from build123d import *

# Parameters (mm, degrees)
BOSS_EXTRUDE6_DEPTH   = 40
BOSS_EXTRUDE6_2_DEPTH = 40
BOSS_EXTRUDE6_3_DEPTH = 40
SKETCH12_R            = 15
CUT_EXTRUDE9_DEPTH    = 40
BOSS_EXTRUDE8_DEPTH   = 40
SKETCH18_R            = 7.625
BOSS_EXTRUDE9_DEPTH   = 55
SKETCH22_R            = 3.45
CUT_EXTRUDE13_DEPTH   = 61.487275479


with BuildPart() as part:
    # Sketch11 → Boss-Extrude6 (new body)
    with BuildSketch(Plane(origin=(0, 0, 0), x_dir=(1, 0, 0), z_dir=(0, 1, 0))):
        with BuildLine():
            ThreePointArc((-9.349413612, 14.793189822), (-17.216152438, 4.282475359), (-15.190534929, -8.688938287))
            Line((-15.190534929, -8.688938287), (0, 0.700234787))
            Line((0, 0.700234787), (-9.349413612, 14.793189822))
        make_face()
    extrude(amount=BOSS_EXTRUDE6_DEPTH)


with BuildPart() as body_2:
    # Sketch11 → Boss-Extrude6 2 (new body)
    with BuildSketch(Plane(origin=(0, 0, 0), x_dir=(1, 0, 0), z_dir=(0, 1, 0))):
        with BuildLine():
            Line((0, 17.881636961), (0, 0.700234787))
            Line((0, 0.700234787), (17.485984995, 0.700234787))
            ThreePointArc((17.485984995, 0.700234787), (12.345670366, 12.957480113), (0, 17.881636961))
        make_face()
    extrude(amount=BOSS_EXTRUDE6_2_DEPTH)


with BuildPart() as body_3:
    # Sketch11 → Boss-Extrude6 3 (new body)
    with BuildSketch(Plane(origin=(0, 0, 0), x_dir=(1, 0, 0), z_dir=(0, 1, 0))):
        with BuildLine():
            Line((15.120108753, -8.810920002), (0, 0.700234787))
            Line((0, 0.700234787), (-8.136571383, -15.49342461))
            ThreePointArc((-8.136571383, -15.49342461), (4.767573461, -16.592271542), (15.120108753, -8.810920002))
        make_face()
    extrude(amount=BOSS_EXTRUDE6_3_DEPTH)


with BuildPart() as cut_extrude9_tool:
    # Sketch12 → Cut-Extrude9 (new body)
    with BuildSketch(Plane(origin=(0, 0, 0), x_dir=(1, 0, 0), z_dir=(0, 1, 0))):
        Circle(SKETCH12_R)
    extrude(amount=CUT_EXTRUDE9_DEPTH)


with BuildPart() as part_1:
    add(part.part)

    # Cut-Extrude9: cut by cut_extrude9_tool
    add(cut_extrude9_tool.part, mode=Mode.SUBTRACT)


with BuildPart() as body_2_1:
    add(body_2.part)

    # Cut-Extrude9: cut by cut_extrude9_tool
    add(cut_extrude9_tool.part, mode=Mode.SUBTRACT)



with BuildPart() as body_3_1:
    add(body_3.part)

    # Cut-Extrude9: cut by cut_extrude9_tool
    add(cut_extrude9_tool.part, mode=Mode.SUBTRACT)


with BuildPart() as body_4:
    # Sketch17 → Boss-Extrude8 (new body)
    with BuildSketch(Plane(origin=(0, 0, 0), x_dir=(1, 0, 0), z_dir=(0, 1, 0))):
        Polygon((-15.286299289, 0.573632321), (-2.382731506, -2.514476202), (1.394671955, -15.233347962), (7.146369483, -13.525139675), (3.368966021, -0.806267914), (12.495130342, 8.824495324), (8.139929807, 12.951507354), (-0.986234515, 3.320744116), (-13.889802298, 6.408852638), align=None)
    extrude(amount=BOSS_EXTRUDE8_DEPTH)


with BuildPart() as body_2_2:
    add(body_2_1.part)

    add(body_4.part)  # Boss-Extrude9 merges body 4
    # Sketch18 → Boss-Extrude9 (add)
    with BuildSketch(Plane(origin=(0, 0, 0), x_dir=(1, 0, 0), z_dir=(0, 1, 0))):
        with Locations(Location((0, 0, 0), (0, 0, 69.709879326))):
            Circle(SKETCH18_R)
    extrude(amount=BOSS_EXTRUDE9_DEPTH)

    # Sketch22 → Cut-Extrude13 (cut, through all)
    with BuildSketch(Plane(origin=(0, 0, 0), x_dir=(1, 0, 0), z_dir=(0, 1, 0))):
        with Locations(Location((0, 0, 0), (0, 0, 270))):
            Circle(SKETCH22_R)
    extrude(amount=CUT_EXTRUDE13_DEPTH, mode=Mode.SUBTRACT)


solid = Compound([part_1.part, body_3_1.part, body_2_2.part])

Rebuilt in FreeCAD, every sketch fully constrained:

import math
import FreeCAD as App
import Part
import Sketcher

V = App.Vector

doc = App.newDocument("Part")
body = doc.addObject("PartDesign::Body", "Body")

# Sketch on XZ plane
sketch1 = body.newObject("Sketcher::SketchObject", "Sketch")
sketch1.AttachmentSupport = (doc.getObject("XZ_Plane"), [""])
sketch1.MapMode = "FlatFace"
sketch1.addGeometry(Part.ArcOfCircle(Part.Circle(V(-1, 0, 0), V(0, 0, 1), 17), math.radians(148), math.radians(240)), False)
sketch1.addGeometry(Part.LineSegment(V(-15, 9, 0), V(0, -1, 0)), False)
sketch1.addGeometry(Part.LineSegment(V(0, -1, 0), V(-9, -15, 0)), False)
sketch1.addConstraint(Sketcher.Constraint("Coincident", 0, 1, 1, 1))
sketch1.addConstraint(Sketcher.Constraint("Coincident", 1, 2, 2, 1))
sketch1.addConstraint(Sketcher.Constraint("Coincident", 2, 2, 0, 2))
sketch1.addConstraint(Sketcher.Constraint("PointOnObject", 1, 2, -2))
sketch1.addConstraint(Sketcher.Constraint("Radius", 0, 16.908369))
sketch1.addConstraint(Sketcher.Constraint("DistanceX", 0, 3, -1, 1, 0.807801))
sketch1.addConstraint(Sketcher.Constraint("Distance", 1, 17.858021))
sketch1.addConstraint(Sketcher.Constraint("DistanceY", 0, 3, -1, 1, 0.200938))
sketch1.addConstraint(Sketcher.Constraint("DistanceY", -1, 1, 0, 1, 8.688938))
sketch1.addConstraint(Sketcher.Constraint("DistanceY", 2, 2, -1, 1, 14.79319))
pad1 = body.newObject("PartDesign::Pad", "Pad")
pad1.Profile = sketch1
pad1.Length = 40
pad1.Reversed = True
body2 = doc.addObject("PartDesign::Body", "Body001")

# Sketch on XZ plane
sketch2 = body2.newObject("Sketcher::SketchObject", "Sketch001")
sketch2.AttachmentSupport = (doc.getObject("XZ_Plane001"), [""])
sketch2.MapMode = "FlatFace"
sketch2.addGeometry(Part.LineSegment(V(0, -18, 0), V(0, -1, 0)), False)
sketch2.addGeometry(Part.LineSegment(V(0, -1, 0), V(17, -1, 0)), False)
sketch2.addGeometry(Part.ArcOfCircle(Part.Circle(V(0, -1, 0), V(0, 0, 1), 17), math.radians(-91), math.radians(0)), False)
sketch2.addConstraint(Sketcher.Constraint("Coincident", 0, 2, 1, 1))
sketch2.addConstraint(Sketcher.Constraint("Coincident", 1, 2, 2, 2))
sketch2.addConstraint(Sketcher.Constraint("Coincident", 2, 1, 0, 1))
sketch2.addConstraint(Sketcher.Constraint("Vertical", 0))
sketch2.addConstraint(Sketcher.Constraint("Horizontal", 1))
sketch2.addConstraint(Sketcher.Constraint("PointOnObject", 0, 2, -2))
sketch2.addConstraint(Sketcher.Constraint("Horizontal", 2, 3, 0, 2))
sketch2.addConstraint(Sketcher.Constraint("Radius", 2, 17.184055))
sketch2.addConstraint(Sketcher.Constraint("DistanceX", 1, 1, 1, 2, 17.485985))
sketch2.addConstraint(Sketcher.Constraint("DistanceY", 2, 3, -1, 1, 0.700235))
pad2 = body2.newObject("PartDesign::Pad", "Pad001")
pad2.Profile = sketch2
pad2.Length = 40
pad2.Reversed = True
body3 = doc.addObject("PartDesign::Body", "Body002")

# Sketch on XZ plane
sketch3 = body3.newObject("Sketcher::SketchObject", "Sketch002")
sketch3.AttachmentSupport = (doc.getObject("XZ_Plane002"), [""])
sketch3.MapMode = "FlatFace"
sketch3.addGeometry(Part.LineSegment(V(15, 9, 0), V(0, -1, 0)), False)
sketch3.addGeometry(Part.LineSegment(V(0, -1, 0), V(-8, 15, 0)), False)
sketch3.addGeometry(Part.ArcOfCircle(Part.Circle(V(0, -1, 0), V(0, 0, 1), 18), math.radians(32), math.radians(116)), False)
sketch3.addConstraint(Sketcher.Constraint("Coincident", 0, 2, 1, 1))
sketch3.addConstraint(Sketcher.Constraint("Coincident", 1, 2, 2, 2))
sketch3.addConstraint(Sketcher.Constraint("Coincident", 2, 1, 0, 1))
sketch3.addConstraint(Sketcher.Constraint("PointOnObject", 0, 2, -2))
sketch3.addConstraint(Sketcher.Constraint("Radius", 2, 18.152946))
sketch3.addConstraint(Sketcher.Constraint("Distance", 1, 18.122869))
sketch3.addConstraint(Sketcher.Constraint("DistanceX", 1, 2, -1, 1, 8.136571))
sketch3.addConstraint(Sketcher.Constraint("DistanceX", -1, 1, 2, 1, 15.120109))
sketch3.addConstraint(Sketcher.Constraint("DistanceY", -1, 1, 2, 1, 8.81092))
sketch3.addConstraint(Sketcher.Constraint("DistanceY", 2, 3, 0, 2, 0.154488))
pad3 = body3.newObject("PartDesign::Pad", "Pad002")
pad3.Profile = sketch3
pad3.Length = 40
pad3.Reversed = True
body4 = doc.addObject("PartDesign::Body", "Body003")

# Sketch on XZ plane
sketch4 = body4.newObject("Sketcher::SketchObject", "Sketch003")
sketch4.AttachmentSupport = (doc.getObject("XZ_Plane003"), [""])
sketch4.MapMode = "FlatFace"
sketch4.addGeometry(Part.Circle(V(0, 0, 0), V(0, 0, 1), 15), False)
sketch4.addConstraint(Sketcher.Constraint("Coincident", 0, 3, -1, 1))
sketch4.addConstraint(Sketcher.Constraint("Diameter", 0, 30.0))
pad4 = body4.newObject("PartDesign::Pad", "Pad003")
pad4.Profile = sketch4
pad4.Length = 40
pad4.Reversed = True
doc.recompute()

body5 = doc.addObject("PartDesign::Body", "Body004")
body5.BaseFeature = body4
boolean = body.newObject("PartDesign::Boolean", "Boolean")
boolean.Type = "Cut"
boolean.addObjects([body5])
doc.recompute()

body6 = doc.addObject("PartDesign::Body", "Body005")
body6.BaseFeature = body4
boolean2 = body2.newObject("PartDesign::Boolean", "Boolean001")
boolean2.Type = "Cut"
boolean2.addObjects([body6])
doc.recompute()

boolean3 = body3.newObject("PartDesign::Boolean", "Boolean002")
boolean3.Type = "Cut"
boolean3.addObjects([body4])
body7 = doc.addObject("PartDesign::Body", "Body006")

# Sketch on XZ plane
sketch5 = body7.newObject("Sketcher::SketchObject", "Sketch004")
sketch5.AttachmentSupport = (doc.getObject("XZ_Plane006"), [""])
sketch5.MapMode = "FlatFace"
sketch5.addGeometry(Part.LineSegment(V(-15, -1, 0), V(-2, 3, 0)), False)
sketch5.addGeometry(Part.LineSegment(V(-2, 3, 0), V(1, 15, 0)), False)
sketch5.addGeometry(Part.LineSegment(V(1, 15, 0), V(7, 14, 0)), False)
sketch5.addGeometry(Part.LineSegment(V(7, 14, 0), V(3, 1, 0)), False)
sketch5.addGeometry(Part.LineSegment(V(3, 1, 0), V(12, -9, 0)), False)
sketch5.addGeometry(Part.LineSegment(V(12, -9, 0), V(8, -13, 0)), False)
sketch5.addGeometry(Part.LineSegment(V(8, -13, 0), V(-1, -3, 0)), False)
sketch5.addGeometry(Part.LineSegment(V(-1, -3, 0), V(-14, -6, 0)), False)
sketch5.addGeometry(Part.LineSegment(V(-14, -6, 0), V(-15, -1, 0)), False)
sketch5.addConstraint(Sketcher.Constraint("Coincident", 0, 2, 1, 1))
sketch5.addConstraint(Sketcher.Constraint("Coincident", 1, 2, 2, 1))
sketch5.addConstraint(Sketcher.Constraint("Coincident", 2, 2, 3, 1))
sketch5.addConstraint(Sketcher.Constraint("Coincident", 3, 2, 4, 1))
sketch5.addConstraint(Sketcher.Constraint("Coincident", 4, 2, 5, 1))
sketch5.addConstraint(Sketcher.Constraint("Coincident", 5, 2, 6, 1))
sketch5.addConstraint(Sketcher.Constraint("Coincident", 6, 2, 7, 1))
sketch5.addConstraint(Sketcher.Constraint("Coincident", 7, 2, 8, 1))
sketch5.addConstraint(Sketcher.Constraint("Coincident", 8, 2, 0, 1))
sketch5.addConstraint(Sketcher.Constraint("Perpendicular", 1, 2))
sketch5.addConstraint(Sketcher.Constraint("Perpendicular", 2, 3))
sketch5.addConstraint(Sketcher.Constraint("Perpendicular", 4, 5))
sketch5.addConstraint(Sketcher.Constraint("Perpendicular", 5, 6))
sketch5.addConstraint(Sketcher.Constraint("Parallel", 0, 7))
sketch5.addConstraint(Sketcher.Constraint("Perpendicular", 7, 8))
sketch5.addConstraint(Sketcher.Constraint("Equal", 0, 1))
sketch5.addConstraint(Sketcher.Constraint("Equal", 1, 3))
sketch5.addConstraint(Sketcher.Constraint("Equal", 3, 4))
sketch5.addConstraint(Sketcher.Constraint("Equal", 2, 5))
sketch5.addConstraint(Sketcher.Constraint("Equal", 4, 6))
sketch5.addConstraint(Sketcher.Constraint("Equal", 6, 7))
sketch5.addConstraint(Sketcher.Constraint("Equal", 5, 8))
sketch5.addConstraint(Sketcher.Constraint("Distance", 2, 6.0))
sketch5.addConstraint(Sketcher.Constraint("DistanceX", 8, 2, -1, 1, 15.286299))
sketch5.addConstraint(Sketcher.Constraint("DistanceX", 0, 2, 2, 2, 9.529101))
sketch5.addConstraint(Sketcher.Constraint("DistanceX", 5, 2, 4, 2, 4.355201))
sketch5.addConstraint(Sketcher.Constraint("DistanceY", -1, 1, 2, 2, 13.52514))
pad5 = body7.newObject("PartDesign::Pad", "Pad004")
pad5.Profile = sketch5
pad5.Length = 40
pad5.Reversed = True
doc.recompute()

boolean4 = body2.newObject("PartDesign::Boolean", "Boolean003")
boolean4.Type = "Fuse"
boolean4.addObjects([body7])

# Sketch on XZ plane
sketch6 = body2.newObject("Sketcher::SketchObject", "Sketch005")
sketch6.AttachmentSupport = (doc.getObject("XZ_Plane001"), [""])
sketch6.MapMode = "FlatFace"
sketch6.addGeometry(Part.Circle(V(0, 0, 0), V(0, 0, 1), 8), False)
sketch6.addConstraint(Sketcher.Constraint("Coincident", 0, 3, -1, 1))
sketch6.addConstraint(Sketcher.Constraint("Diameter", 0, 15.25))
pad6 = body2.newObject("PartDesign::Pad", "Pad005")
pad6.Profile = sketch6
pad6.Length = 55
pad6.Reversed = True

# Sketch on XZ plane
sketch7 = body2.newObject("Sketcher::SketchObject", "Sketch006")
sketch7.AttachmentSupport = (doc.getObject("XZ_Plane001"), [""])
sketch7.MapMode = "FlatFace"
sketch7.addGeometry(Part.Circle(V(0, 0, 0), V(0, 0, 1), 3.5), False)
sketch7.addConstraint(Sketcher.Constraint("Coincident", 0, 3, -1, 1))
sketch7.addConstraint(Sketcher.Constraint("Diameter", 0, 6.9))
pocket1 = body2.newObject("PartDesign::Pocket", "Pocket")
pocket1.Profile = sketch7
pocket1.Type = "ThroughAll"

doc.recompute()
